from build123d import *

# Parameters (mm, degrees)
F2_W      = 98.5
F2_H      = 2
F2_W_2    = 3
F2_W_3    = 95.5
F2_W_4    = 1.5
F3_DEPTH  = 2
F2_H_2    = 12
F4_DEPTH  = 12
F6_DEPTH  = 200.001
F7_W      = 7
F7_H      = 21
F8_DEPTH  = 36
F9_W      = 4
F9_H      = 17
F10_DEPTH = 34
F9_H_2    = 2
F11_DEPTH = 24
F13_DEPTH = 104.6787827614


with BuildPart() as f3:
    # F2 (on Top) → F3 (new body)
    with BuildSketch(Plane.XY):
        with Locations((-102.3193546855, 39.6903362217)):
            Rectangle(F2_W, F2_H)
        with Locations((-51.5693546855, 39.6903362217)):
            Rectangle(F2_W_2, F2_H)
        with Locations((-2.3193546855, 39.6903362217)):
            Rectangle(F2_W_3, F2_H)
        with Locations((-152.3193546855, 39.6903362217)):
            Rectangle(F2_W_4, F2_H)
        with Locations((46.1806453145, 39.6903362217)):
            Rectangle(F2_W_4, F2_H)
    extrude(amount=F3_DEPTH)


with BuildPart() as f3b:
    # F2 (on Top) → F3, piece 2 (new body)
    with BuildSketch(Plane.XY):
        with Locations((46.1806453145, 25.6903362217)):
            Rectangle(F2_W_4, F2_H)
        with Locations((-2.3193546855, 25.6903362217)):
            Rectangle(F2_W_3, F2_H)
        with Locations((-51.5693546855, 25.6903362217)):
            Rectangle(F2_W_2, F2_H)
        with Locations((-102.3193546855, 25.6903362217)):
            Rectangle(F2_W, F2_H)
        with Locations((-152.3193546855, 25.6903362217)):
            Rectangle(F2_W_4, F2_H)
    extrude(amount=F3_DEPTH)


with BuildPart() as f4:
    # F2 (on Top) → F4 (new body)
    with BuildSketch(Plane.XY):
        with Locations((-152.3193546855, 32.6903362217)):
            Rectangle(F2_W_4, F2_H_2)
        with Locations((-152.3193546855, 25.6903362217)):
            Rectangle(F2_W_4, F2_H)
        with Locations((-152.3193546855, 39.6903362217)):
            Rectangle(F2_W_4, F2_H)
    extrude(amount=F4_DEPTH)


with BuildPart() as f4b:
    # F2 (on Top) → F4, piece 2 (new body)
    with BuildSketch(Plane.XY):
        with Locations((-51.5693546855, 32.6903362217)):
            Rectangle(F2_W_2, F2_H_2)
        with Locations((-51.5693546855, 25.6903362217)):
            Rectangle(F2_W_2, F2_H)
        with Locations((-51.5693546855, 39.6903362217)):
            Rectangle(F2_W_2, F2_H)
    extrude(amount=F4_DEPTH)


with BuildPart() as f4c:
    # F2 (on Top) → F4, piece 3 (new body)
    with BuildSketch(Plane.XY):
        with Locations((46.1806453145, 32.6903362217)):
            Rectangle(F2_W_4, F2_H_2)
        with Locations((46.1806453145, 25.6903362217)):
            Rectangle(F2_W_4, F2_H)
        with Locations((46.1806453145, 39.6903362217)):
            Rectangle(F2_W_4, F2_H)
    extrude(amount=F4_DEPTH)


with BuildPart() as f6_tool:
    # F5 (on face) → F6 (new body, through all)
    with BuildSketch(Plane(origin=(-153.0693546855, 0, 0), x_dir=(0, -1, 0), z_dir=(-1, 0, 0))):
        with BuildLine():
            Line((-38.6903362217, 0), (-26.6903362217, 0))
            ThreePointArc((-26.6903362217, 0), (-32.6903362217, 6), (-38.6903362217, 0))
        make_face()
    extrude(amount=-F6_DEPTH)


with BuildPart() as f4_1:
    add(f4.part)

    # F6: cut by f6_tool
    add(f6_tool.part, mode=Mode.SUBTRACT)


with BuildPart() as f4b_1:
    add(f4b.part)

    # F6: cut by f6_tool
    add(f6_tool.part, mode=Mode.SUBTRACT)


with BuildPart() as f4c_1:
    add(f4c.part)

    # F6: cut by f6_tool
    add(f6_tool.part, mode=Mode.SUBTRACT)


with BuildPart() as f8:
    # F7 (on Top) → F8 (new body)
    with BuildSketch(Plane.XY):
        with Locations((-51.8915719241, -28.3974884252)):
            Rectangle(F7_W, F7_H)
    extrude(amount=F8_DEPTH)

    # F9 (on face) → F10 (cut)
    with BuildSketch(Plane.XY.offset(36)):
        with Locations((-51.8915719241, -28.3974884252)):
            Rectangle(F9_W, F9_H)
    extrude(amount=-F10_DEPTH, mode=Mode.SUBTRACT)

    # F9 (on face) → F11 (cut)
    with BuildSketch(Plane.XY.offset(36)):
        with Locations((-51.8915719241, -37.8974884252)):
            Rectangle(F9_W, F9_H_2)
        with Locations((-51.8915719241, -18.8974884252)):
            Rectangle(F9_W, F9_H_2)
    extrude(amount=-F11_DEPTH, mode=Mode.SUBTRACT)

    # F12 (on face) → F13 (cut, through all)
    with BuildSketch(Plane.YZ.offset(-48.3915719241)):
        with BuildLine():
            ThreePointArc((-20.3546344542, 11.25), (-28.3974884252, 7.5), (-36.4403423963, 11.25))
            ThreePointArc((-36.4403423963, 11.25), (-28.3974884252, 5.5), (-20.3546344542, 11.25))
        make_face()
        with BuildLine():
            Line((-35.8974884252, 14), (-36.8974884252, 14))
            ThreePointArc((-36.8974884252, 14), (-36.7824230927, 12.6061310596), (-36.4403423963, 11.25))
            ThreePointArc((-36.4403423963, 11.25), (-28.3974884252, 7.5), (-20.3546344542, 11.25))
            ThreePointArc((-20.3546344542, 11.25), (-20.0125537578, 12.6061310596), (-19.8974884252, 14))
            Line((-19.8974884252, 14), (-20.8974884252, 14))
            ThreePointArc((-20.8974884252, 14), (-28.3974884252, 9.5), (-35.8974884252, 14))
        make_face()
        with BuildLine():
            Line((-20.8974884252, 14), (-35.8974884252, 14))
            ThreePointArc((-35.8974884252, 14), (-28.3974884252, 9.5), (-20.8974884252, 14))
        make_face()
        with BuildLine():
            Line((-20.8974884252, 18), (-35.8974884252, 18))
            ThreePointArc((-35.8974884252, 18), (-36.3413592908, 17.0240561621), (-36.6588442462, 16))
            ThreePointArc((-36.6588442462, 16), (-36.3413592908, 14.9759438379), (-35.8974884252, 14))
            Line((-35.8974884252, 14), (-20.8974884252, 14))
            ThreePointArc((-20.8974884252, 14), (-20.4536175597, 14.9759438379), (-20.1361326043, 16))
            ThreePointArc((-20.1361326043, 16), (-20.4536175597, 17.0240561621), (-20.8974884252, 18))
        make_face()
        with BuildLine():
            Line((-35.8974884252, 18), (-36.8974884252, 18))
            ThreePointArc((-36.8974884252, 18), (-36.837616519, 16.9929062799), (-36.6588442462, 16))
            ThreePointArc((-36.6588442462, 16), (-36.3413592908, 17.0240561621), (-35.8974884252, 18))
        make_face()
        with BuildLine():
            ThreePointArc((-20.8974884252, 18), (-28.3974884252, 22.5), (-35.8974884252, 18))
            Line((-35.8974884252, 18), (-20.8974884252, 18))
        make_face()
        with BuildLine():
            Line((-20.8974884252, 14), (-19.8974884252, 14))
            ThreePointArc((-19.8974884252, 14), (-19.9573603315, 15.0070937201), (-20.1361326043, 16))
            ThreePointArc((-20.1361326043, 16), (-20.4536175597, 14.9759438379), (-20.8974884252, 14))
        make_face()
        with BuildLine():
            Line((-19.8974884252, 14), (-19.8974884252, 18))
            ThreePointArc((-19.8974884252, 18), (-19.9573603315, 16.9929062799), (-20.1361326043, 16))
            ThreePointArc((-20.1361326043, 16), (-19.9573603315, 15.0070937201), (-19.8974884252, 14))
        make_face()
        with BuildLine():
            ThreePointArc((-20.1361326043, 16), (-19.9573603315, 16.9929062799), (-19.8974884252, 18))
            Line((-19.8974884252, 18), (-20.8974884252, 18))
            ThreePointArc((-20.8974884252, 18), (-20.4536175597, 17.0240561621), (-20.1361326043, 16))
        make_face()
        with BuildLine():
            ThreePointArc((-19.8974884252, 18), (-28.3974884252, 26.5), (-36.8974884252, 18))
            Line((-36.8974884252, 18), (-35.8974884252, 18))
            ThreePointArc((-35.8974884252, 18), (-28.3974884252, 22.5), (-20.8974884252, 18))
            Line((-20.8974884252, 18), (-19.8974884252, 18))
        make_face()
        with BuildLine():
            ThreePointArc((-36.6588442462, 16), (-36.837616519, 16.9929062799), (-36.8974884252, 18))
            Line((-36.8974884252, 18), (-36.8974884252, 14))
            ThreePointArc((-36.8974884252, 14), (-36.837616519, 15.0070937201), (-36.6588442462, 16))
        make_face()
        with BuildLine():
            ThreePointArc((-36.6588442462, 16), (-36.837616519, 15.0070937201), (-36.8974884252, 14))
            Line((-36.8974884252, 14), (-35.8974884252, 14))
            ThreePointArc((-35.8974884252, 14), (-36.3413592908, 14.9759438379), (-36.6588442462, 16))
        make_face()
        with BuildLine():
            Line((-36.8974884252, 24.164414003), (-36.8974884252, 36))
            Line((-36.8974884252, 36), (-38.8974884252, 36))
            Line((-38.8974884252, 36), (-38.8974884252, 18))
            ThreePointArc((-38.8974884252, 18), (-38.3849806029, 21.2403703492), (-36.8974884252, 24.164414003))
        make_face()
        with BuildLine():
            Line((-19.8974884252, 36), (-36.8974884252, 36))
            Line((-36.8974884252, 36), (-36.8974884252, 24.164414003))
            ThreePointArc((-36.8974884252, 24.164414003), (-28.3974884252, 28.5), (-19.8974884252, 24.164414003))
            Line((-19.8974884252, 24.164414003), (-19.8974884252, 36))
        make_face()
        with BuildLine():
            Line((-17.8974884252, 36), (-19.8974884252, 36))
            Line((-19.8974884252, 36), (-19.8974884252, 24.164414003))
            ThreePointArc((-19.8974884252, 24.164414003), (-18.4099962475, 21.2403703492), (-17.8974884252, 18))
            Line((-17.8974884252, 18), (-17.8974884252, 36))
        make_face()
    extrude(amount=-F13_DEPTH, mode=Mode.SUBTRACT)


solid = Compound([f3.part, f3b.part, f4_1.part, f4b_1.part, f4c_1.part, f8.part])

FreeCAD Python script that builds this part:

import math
import FreeCAD as App
import Part
import Sketcher

doc = App.newDocument("Part")
body = doc.addObject("PartDesign::Body", "Body")

sketch1 = body.newObject("Sketcher::SketchObject", "Sketch")
sketch1.AttachmentSupport = (doc.getObject("XY_Plane"), [""])
sketch1.MapMode = "FlatFace"
sketch1.addGeometry(Part.LineSegment(App.Vector(-153.1, 40.7, 0), App.Vector(-153.1, 38.7, 0)), False)
sketch1.addGeometry(Part.LineSegment(App.Vector(-153.1, 38.7, 0), App.Vector(46.9, 38.7, 0)), False)
sketch1.addGeometry(Part.LineSegment(App.Vector(46.9, 38.7, 0), App.Vector(46.9, 40.7, 0)), False)
sketch1.addGeometry(Part.LineSegment(App.Vector(46.9, 40.7, 0), App.Vector(-153.1, 40.7, 0)), False)
sketch1.addConstraint(Sketcher.Constraint("Coincident", 0, 2, 1, 1))
sketch1.addConstraint(Sketcher.Constraint("Coincident", 1, 2, 2, 1))
sketch1.addConstraint(Sketcher.Constraint("Coincident", 2, 2, 3, 1))
sketch1.addConstraint(Sketcher.Constraint("Coincident", 3, 2, 0, 1))
sketch1.addConstraint(Sketcher.Constraint("Vertical", 0))
sketch1.addConstraint(Sketcher.Constraint("Horizontal", 1))
sketch1.addConstraint(Sketcher.Constraint("Vertical", 2))
sketch1.addConstraint(Sketcher.Constraint("Horizontal", 3))
sketch1.addConstraint(Sketcher.Constraint("DistanceX", 1, 1, 1, 2, 200.0))
sketch1.addConstraint(Sketcher.Constraint("DistanceY", 0, 2, 0, 1, 2.0))
sketch1.addConstraint(Sketcher.Constraint("DistanceX", 0, 2, -1, 1, 153.069355))
sketch1.addConstraint(Sketcher.Constraint("DistanceY", -1, 1, 0, 2, 38.690336))
pad1 = body.newObject("PartDesign::Pad", "Pad")
pad1.Profile = sketch1
pad1.Length = 2
body2 = doc.addObject("PartDesign::Body", "Body001")

sketch2 = body2.newObject("Sketcher::SketchObject", "Sketch001")
sketch2.AttachmentSupport = (doc.getObject("XY_Plane001"), [""])
sketch2.MapMode = "FlatFace"
sketch2.addGeometry(Part.LineSegment(App.Vector(46.9, 24.7, 0), App.Vector(46.9, 26.7, 0)), False)
sketch2.addGeometry(Part.LineSegment(App.Vector(46.9, 26.7, 0), App.Vector(-153.1, 26.7, 0)), False)
sketch2.addGeometry(Part.LineSegment(App.Vector(-153.1, 26.7, 0), App.Vector(-153.1, 24.7, 0)), False)
sketch2.addGeometry(Part.LineSegment(App.Vector(-153.1, 24.7, 0), App.Vector(46.9, 24.7, 0)), False)
sketch2.addConstraint(Sketcher.Constraint("Coincident", 0, 2, 1, 1))
sketch2.addConstraint(Sketcher.Constraint("Coincident", 1, 2, 2, 1))
sketch2.addConstraint(Sketcher.Constraint("Coincident", 2, 2, 3, 1))
sketch2.addConstraint(Sketcher.Constraint("Coincident", 3, 2, 0, 1))
sketch2.addConstraint(Sketcher.Constraint("Vertical", 0))
sketch2.addConstraint(Sketcher.Constraint("Horizontal", 1))
sketch2.addConstraint(Sketcher.Constraint("Vertical", 2))
sketch2.addConstraint(Sketcher.Constraint("Horizontal", 3))
sketch2.addConstraint(Sketcher.Constraint("DistanceX", 1, 2, 1, 1, 200.0))
sketch2.addConstraint(Sketcher.Constraint("DistanceY", 0, 1, 0, 2, 2.0))
sketch2.addConstraint(Sketcher.Constraint("DistanceX", -1, 1, 0, 2, 46.930645))
sketch2.addConstraint(Sketcher.Constraint("DistanceY", -1, 1, 0, 2, 26.690336))
pad2 = body2.newObject("PartDesign::Pad", "Pad001")
pad2.Profile = sketch2
pad2.Length = 2
body3 = doc.addObject("PartDesign::Body", "Body002")

sketch3 = body3.newObject("Sketcher::SketchObject", "Sketch002")
sketch3.AttachmentSupport = (doc.getObject("XY_Plane002"), [""])
sketch3.MapMode = "FlatFace"
sketch3.addGeometry(Part.LineSegment(App.Vector(-153.1, 24.7, 0), App.Vector(-151.6, 24.7, 0)), False)
sketch3.addGeometry(Part.LineSegment(App.Vector(-151.6, 24.7, 0), App.Vector(-151.6, 40.7, 0)), False)
sketch3.addGeometry(Part.LineSegment(App.Vector(-151.6, 40.7, 0), App.Vector(-153.1, 40.7, 0)), False)
sketch3.addGeometry(Part.LineSegment(App.Vector(-153.1, 40.7, 0), App.Vector(-153.1, 24.7, 0)), False)
sketch3.addConstraint(Sketcher.Constraint("Coincident", 0, 2, 1, 1))
sketch3.addConstraint(Sketcher.Constraint("Coincident", 1, 2, 2, 1))
sketch3.addConstraint(Sketcher.Constraint("Coincident", 2, 2, 3, 1))
sketch3.addConstraint(Sketcher.Constraint("Coincident", 3, 2, 0, 1))
sketch3.addConstraint(Sketcher.Constraint("Horizontal", 0))
sketch3.addConstraint(Sketcher.Constraint("Vertical", 1))
sketch3.addConstraint(Sketcher.Constraint("Horizontal", 2))
sketch3.addConstraint(Sketcher.Constraint("Vertical", 3))
sketch3.addConstraint(Sketcher.Constraint("DistanceY", 1, 1, 1, 2, 16.0))
sketch3.addConstraint(Sketcher.Constraint("DistanceX", 0, 1, 0, 2, 1.5))
sketch3.addConstraint(Sketcher.Constraint("DistanceX", 0, 2, -1, 1, 151.569355))
sketch3.addConstraint(Sketcher.Constraint("DistanceY", -1, 1, 0, 2, 24.690336))
pad3 = body3.newObject("PartDesign::Pad", "Pad002")
pad3.Profile = sketch3
pad3.Length = 12
body4 = doc.addObject("PartDesign::Body", "Body003")

sketch4 = body4.newObject("Sketcher::SketchObject", "Sketch003")
sketch4.AttachmentSupport = (doc.getObject("XY_Plane003"), [""])
sketch4.MapMode = "FlatFace"
sketch4.addGeometry(Part.LineSegment(App.Vector(-53.1, 24.7, 0), App.Vector(-50.1, 24.7, 0)), False)
sketch4.addGeometry(Part.LineSegment(App.Vector(-50.1, 24.7, 0), App.Vector(-50.1, 40.7, 0)), False)
sketch4.addGeometry(Part.LineSegment(App.Vector(-50.1, 40.7, 0), App.Vector(-53.1, 40.7, 0)), False)
sketch4.addGeometry(Part.LineSegment(App.Vector(-53.1, 40.7, 0), App.Vector(-53.1, 24.7, 0)), False)
sketch4.addConstraint(Sketcher.Constraint("Coincident", 0, 2, 1, 1))
sketch4.addConstraint(Sketcher.Constraint("Coincident", 1, 2, 2, 1))
sketch4.addConstraint(Sketcher.Constraint("Coincident", 2, 2, 3, 1))
sketch4.addConstraint(Sketcher.Constraint("Coincident", 3, 2, 0, 1))
sketch4.addConstraint(Sketcher.Constraint("Horizontal", 0))
sketch4.addConstraint(Sketcher.Constraint("Vertical", 1))
sketch4.addConstraint(Sketcher.Constraint("Horizontal", 2))
sketch4.addConstraint(Sketcher.Constraint("Vertical", 3))
sketch4.addConstraint(Sketcher.Constraint("DistanceX", 0, 1, 0, 2, 3.0))
sketch4.addConstraint(Sketcher.Constraint("DistanceY", 1, 1, 1, 2, 16.0))
sketch4.addConstraint(Sketcher.Constraint("DistanceX", 0, 2, -1, 1, 50.069355))
sketch4.addConstraint(Sketcher.Constraint("DistanceY", -1, 1, 0, 2, 24.690336))
pad4 = body4.newObject("PartDesign::Pad", "Pad003")
pad4.Profile = sketch4
pad4.Length = 12
body5 = doc.addObject("PartDesign::Body", "Body004")

sketch5 = body5.newObject("Sketcher::SketchObject", "Sketch004")
sketch5.AttachmentSupport = (doc.getObject("XY_Plane004"), [""])
sketch5.MapMode = "FlatFace"
sketch5.addGeometry(Part.LineSegment(App.Vector(45.4, 24.7, 0), App.Vector(46.9, 24.7, 0)), False)
sketch5.addGeometry(Part.LineSegment(App.Vector(46.9, 24.7, 0), App.Vector(46.9, 40.7, 0)), False)
sketch5.addGeometry(Part.LineSegment(App.Vector(46.9, 40.7, 0), App.Vector(45.4, 40.7, 0)), False)
sketch5.addGeometry(Part.LineSegment(App.Vector(45.4, 40.7, 0), App.Vector(45.4, 24.7, 0)), False)
sketch5.addConstraint(Sketcher.Constraint("Coincident", 0, 2, 1, 1))
sketch5.addConstraint(Sketcher.Constraint("Coincident", 1, 2, 2, 1))
sketch5.addConstraint(Sketcher.Constraint("Coincident", 2, 2, 3, 1))
sketch5.addConstraint(Sketcher.Constraint("Coincident", 3, 2, 0, 1))
sketch5.addConstraint(Sketcher.Constraint("Horizontal", 0))
sketch5.addConstraint(Sketcher.Constraint("Vertical", 1))
sketch5.addConstraint(Sketcher.Constraint("Horizontal", 2))
sketch5.addConstraint(Sketcher.Constraint("Vertical", 3))
sketch5.addConstraint(Sketcher.Constraint("DistanceY", 1, 1, 1, 2, 16.0))
sketch5.addConstraint(Sketcher.Constraint("DistanceX", 0, 1, 0, 2, 1.5))
sketch5.addConstraint(Sketcher.Constraint("DistanceX", -1, 1, 0, 2, 46.930645))
sketch5.addConstraint(Sketcher.Constraint("DistanceY", -1, 1, 0, 2, 24.690336))
pad5 = body5.newObject("PartDesign::Pad", "Pad004")
pad5.Profile = sketch5
pad5.Length = 12
body6 = doc.addObject("PartDesign::Body", "Body005")

sketch6 = body6.newObject("Sketcher::SketchObject", "Sketch005")
sketch6.AttachmentSupport = (doc.getObject("YZ_Plane005"), [""])
sketch6.MapMode = "FlatFace"
sketch6.AttachmentOffset = App.Placement(App.Vector(0, 0, -153.069355), App.Rotation())
sketch6.addGeometry(Part.LineSegment(App.Vector(39, 0, 0), App.Vector(27, 0, 0)), False)
sketch6.addGeometry(Part.ArcOfCircle(Part.Circle(App.Vector(33, 0, 0), App.Vector(0, 0, 1), 6), math.radians(0), math.radians(180)), False)
sketch6.addConstraint(Sketcher.Constraint("Coincident", 0, 1, 1, 1))
sketch6.addConstraint(Sketcher.Constraint("Coincident", 1, 2, 0, 2))
sketch6.addConstraint(Sketcher.Constraint("Horizontal", 0))
sketch6.addConstraint(Sketcher.Constraint("PointOnObject", 1, 3, -1))
sketch6.addConstraint(Sketcher.Constraint("PointOnObject", 0, 1, -1))
sketch6.addConstraint(Sketcher.Constraint("Radius", 1, 6.0))
sketch6.addConstraint(Sketcher.Constraint("DistanceX", -1, 1, 1, 3, 32.690336))
pad6 = body6.newObject("PartDesign::Pad", "Pad005")
pad6.Profile = sketch6
pad6.Length = 200.001
doc.recompute()

body7 = doc.addObject("PartDesign::Body", "Body006")
body7.BaseFeature = body6
boolean = body3.newObject("PartDesign::Boolean", "Boolean")
boolean.Type = "Cut"
boolean.addObjects([body7])
doc.recompute()

body8 = doc.addObject("PartDesign::Body", "Body007")
body8.BaseFeature = body6
boolean2 = body4.newObject("PartDesign::Boolean", "Boolean001")
boolean2.Type = "Cut"
boolean2.addObjects([body8])
doc.recompute()

boolean3 = body5.newObject("PartDesign::Boolean", "Boolean002")
boolean3.Type = "Cut"
boolean3.addObjects([body6])
body9 = doc.addObject("PartDesign::Body", "Body008")

sketch7 = body9.newObject("Sketcher::SketchObject", "Sketch006")
sketch7.AttachmentSupport = (doc.getObject("XY_Plane008"), [""])
sketch7.MapMode = "FlatFace"
sketch7.addGeometry(Part.LineSegment(App.Vector(-55, -18, 0), App.Vector(-55, -39, 0)), False)
sketch7.addGeometry(Part.LineSegment(App.Vector(-55, -39, 0), App.Vector(-48, -39, 0)), False)
sketch7.addGeometry(Part.LineSegment(App.Vector(-48, -39, 0), App.Vector(-48, -18, 0)), False)
sketch7.addGeometry(Part.LineSegment(App.Vector(-48, -18, 0), App.Vector(-55, -18, 0)), False)
sketch7.addConstraint(Sketcher.Constraint("Coincident", 0, 2, 1, 1))
sketch7.addConstraint(Sketcher.Constraint("Coincident", 1, 2, 2, 1))
sketch7.addConstraint(Sketcher.Constraint("Coincident", 2, 2, 3, 1))
sketch7.addConstraint(Sketcher.Constraint("Coincident", 3, 2, 0, 1))
sketch7.addConstraint(Sketcher.Constraint("Vertical", 0))
sketch7.addConstraint(Sketcher.Constraint("Horizontal", 1))
sketch7.addConstraint(Sketcher.Constraint("Vertical", 2))
sketch7.addConstraint(Sketcher.Constraint("Horizontal", 3))
sketch7.addConstraint(Sketcher.Constraint("DistanceX", 1, 1, 1, 2, 7.0))
sketch7.addConstraint(Sketcher.Constraint("DistanceY", 0, 2, 0, 1, 21.0))
sketch7.addConstraint(Sketcher.Constraint("DistanceX", 0, 2, -1, 1, 55.391572))
sketch7.addConstraint(Sketcher.Constraint("DistanceY", 0, 2, -1, 1, 38.897488))
pad7 = body9.newObject("PartDesign::Pad", "Pad006")
pad7.Profile = sketch7
pad7.Length = 36

sketch8 = body9.newObject("Sketcher::SketchObject", "Sketch007")
sketch8.AttachmentSupport = (doc.getObject("XY_Plane008"), [""])
sketch8.MapMode = "FlatFace"
sketch8.AttachmentOffset = App.Placement(App.Vector(0, 0, 36), App.Rotation())
sketch8.addGeometry(Part.LineSegment(App.Vector(-53.9, -19.9, 0), App.Vector(-53.9, -36.9, 0)), False)
sketch8.addGeometry(Part.LineSegment(App.Vector(-53.9, -36.9, 0), App.Vector(-49.9, -36.9, 0)), False)
sketch8.addGeometry(Part.LineSegment(App.Vector(-49.9, -36.9, 0), App.Vector(-49.9, -19.9, 0)), False)
sketch8.addGeometry(Part.LineSegment(App.Vector(-49.9, -19.9, 0), App.Vector(-53.9, -19.9, 0)), False)
sketch8.addConstraint(Sketcher.Constraint("Coincident", 0, 2, 1, 1))
sketch8.addConstraint(Sketcher.Constraint("Coincident", 1, 2, 2, 1))
sketch8.addConstraint(Sketcher.Constraint("Coincident", 2, 2, 3, 1))
sketch8.addConstraint(Sketcher.Constraint("Coincident", 3, 2, 0, 1))
sketch8.addConstraint(Sketcher.Constraint("Vertical", 0))
sketch8.addConstraint(Sketcher.Constraint("Horizontal", 1))
sketch8.addConstraint(Sketcher.Constraint("Vertical", 2))
sketch8.addConstraint(Sketcher.Constraint("Horizontal", 3))
sketch8.addConstraint(Sketcher.Constraint("DistanceX", 1, 1, 1, 2, 4.0))
sketch8.addConstraint(Sketcher.Constraint("DistanceY", 0, 2, 0, 1, 17.0))
sketch8.addConstraint(Sketcher.Constraint("DistanceX", 0, 2, -1, 1, 53.891572))
sketch8.addConstraint(Sketcher.Constraint("DistanceY", 0, 2, -1, 1, 36.897488))
pocket1 = body9.newObject("PartDesign::Pocket", "Pocket")
pocket1.Profile = sketch8
pocket1.Length = 34

sketch9 = body9.newObject("Sketcher::SketchObject", "Sketch008")
sketch9.AttachmentSupport = (doc.getObject("XY_Plane008"), [""])
sketch9.MapMode = "FlatFace"
sketch9.AttachmentOffset = App.Placement(App.Vector(0, 0, 36), App.Rotation())
sketch9.addGeometry(Part.LineSegment(App.Vector(-53.9, -36.9, 0), App.Vector(-53.9, -38.9, 0)), False)
sketch9.addGeometry(Part.LineSegment(App.Vector(-53.9, -38.9, 0), App.Vector(-49.9, -38.9, 0)), False)
sketch9.addGeometry(Part.LineSegment(App.Vector(-49.9, -38.9, 0), App.Vector(-49.9, -36.9, 0)), False)
sketch9.addGeometry(Part.LineSegment(App.Vector(-49.9, -36.9, 0), App.Vector(-53.9, -36.9, 0)), False)
sketch9.addGeometry(Part.LineSegment(App.Vector(-53.9, -17.9, 0), App.Vector(-53.9, -19.9, 0)), False)
sketch9.addGeometry(Part.LineSegment(App.Vector(-53.9, -19.9, 0), App.Vector(-49.9, -19.9, 0)), False)
sketch9.addGeometry(Part.LineSegment(App.Vector(-49.9, -19.9, 0), App.Vector(-49.9, -17.9, 0)), False)
sketch9.addGeometry(Part.LineSegment(App.Vector(-49.9, -17.9, 0), App.Vector(-53.9, -17.9, 0)), False)
sketch9.addConstraint(Sketcher.Constraint("Coincident", 0, 2, 1, 1))
sketch9.addConstraint(Sketcher.Constraint("Coincident", 1, 2, 2, 1))
sketch9.addConstraint(Sketcher.Constraint("Coincident", 2, 2, 3, 1))
sketch9.addConstraint(Sketcher.Constraint("Coincident", 3, 2, 0, 1))
sketch9.addConstraint(Sketcher.Constraint("Coincident", 4, 2, 5, 1))
sketch9.addConstraint(Sketcher.Constraint("Coincident", 5, 2, 6, 1))
sketch9.addConstraint(Sketcher.Constraint("Coincident", 6, 2, 7, 1))
sketch9.addConstraint(Sketcher.Constraint("Coincident", 7, 2, 4, 1))
sketch9.addConstraint(Sketcher.Constraint("Vertical", 0))
sketch9.addConstraint(Sketcher.Constraint("Horizontal", 1))
sketch9.addConstraint(Sketcher.Constraint("Vertical", 2))
sketch9.addConstraint(Sketcher.Constraint("Horizontal", 3))
sketch9.addConstraint(Sketcher.Constraint("Vertical", 4))
sketch9.addConstraint(Sketcher.Constraint("Horizontal", 5))
sketch9.addConstraint(Sketcher.Constraint("Vertical", 6))
sketch9.addConstraint(Sketcher.Constraint("Horizontal", 7))
sketch9.addConstraint(Sketcher.Constraint("Vertical", 3, 2, 4, 2))
sketch9.addConstraint(Sketcher.Constraint("Vertical", 2, 2, 5, 2))
sketch9.addConstraint(Sketcher.Constraint("Equal", 2, 4))
sketch9.addConstraint(Sketcher.Constraint("DistanceX", 1, 1, 1, 2, 4.0))
sketch9.addConstraint(Sketcher.Constraint("DistanceY", 0, 2, 0, 1, 2.0))
sketch9.addConstraint(Sketcher.Constraint("DistanceY", 3, 2, 4, 2, 17.0))
sketch9.addConstraint(Sketcher.Constraint("DistanceX", 0, 2, -1, 1, 53.891572))
sketch9.addConstraint(Sketcher.Constraint("DistanceY", 0, 2, -1, 1, 38.897488))
pocket2 = body9.newObject("PartDesign::Pocket", "Pocket001")
pocket2.Profile = sketch9
pocket2.Length = 24

sketch10 = body9.newObject("Sketcher::SketchObject", "Sketch009")
sketch10.AttachmentSupport = (doc.getObject("YZ_Plane008"), [""])
sketch10.MapMode = "FlatFace"
sketch10.AttachmentOffset = App.Placement(App.Vector(0, 0, -48.391572), App.Rotation())
sketch10.addGeometry(Part.LineSegment(App.Vector(-36.9, 18, 0), App.Vector(-36.9, 14, 0)), False)
sketch10.addGeometry(Part.ArcOfCircle(Part.Circle(App.Vector(-28.4, 14, 0), App.Vector(0, 0, 1), 8.5), math.radians(180), math.radians(198.88)), False)
sketch10.addGeometry(Part.ArcOfCircle(Part.Circle(App.Vector(-28.4, 14, 0), App.Vector(0, 0, 1), 8.5), math.radians(-161), math.radians(-19)), False)
sketch10.addGeometry(Part.ArcOfCircle(Part.Circle(App.Vector(-28.4, 14, 0), App.Vector(0, 0, 1), 8.5), math.radians(-18.88), math.radians(0)), False)
sketch10.addGeometry(Part.LineSegment(App.Vector(-19.9, 14, 0), App.Vector(-19.9, 18, 0)), False)
sketch10.addGeometry(Part.ArcOfCircle(Part.Circle(App.Vector(-28.4, 18, 0), App.Vector(0, 0, 1), 8.5), math.radians(0), math.radians(180)), False)
sketch10.addGeometry(Part.LineSegment(App.Vector(-38.9, 36, 0), App.Vector(-38.9, 18, 0)), False)
sketch10.addGeometry(Part.ArcOfCircle(Part.Circle(App.Vector(-28.4, 18, 0), App.Vector(0, 0, 1), 10.5), math.radians(144), math.radians(180)), False)
sketch10.addGeometry(Part.ArcOfCircle(Part.Circle(App.Vector(-28.4, 18, 0), App.Vector(0, 0, 1), 10.5), math.radians(36), math.radians(144)), False)
sketch10.addGeometry(Part.ArcOfCircle(Part.Circle(App.Vector(-28.4, 18, 0), App.Vector(0, 0, 1), 10.5), math.radians(0), math.radians(36)), False)
sketch10.addGeometry(Part.LineSegment(App.Vector(-17.9, 18, 0), App.Vector(-17.9, 36, 0)), False)
sketch10.addGeometry(Part.LineSegment(App.Vector(-17.9, 36, 0), App.Vector(-38.9, 36, 0)), False)
sketch10.addConstraint(Sketcher.Constraint("Tangent", 0, 2, 1, 1))
sketch10.addConstraint(Sketcher.Constraint("Tangent", 1, 2, 2, 1))
sketch10.addConstraint(Sketcher.Constraint("Tangent", 2, 2, 3, 1))
sketch10.addConstraint(Sketcher.Constraint("Tangent", 3, 2, 4, 1))
sketch10.addConstraint(Sketcher.Constraint("Tangent", 4, 2, 5, 1))
sketch10.addConstraint(Sketcher.Constraint("Tangent", 5, 2, 0, 1))
sketch10.addConstraint(Sketcher.Constraint("Tangent", 6, 2, 7, 2))
sketch10.addConstraint(Sketcher.Constraint("Tangent", 7, 1, 8, 2))
sketch10.addConstraint(Sketcher.Constraint("Tangent", 8, 1, 9, 2))
sketch10.addConstraint(Sketcher.Constraint("Tangent", 9, 1, 10, 1))
sketch10.addConstraint(Sketcher.Constraint("Coincident", 10, 2, 11, 1))
sketch10.addConstraint(Sketcher.Constraint("Coincident", 11, 2, 6, 1))
sketch10.addConstraint(Sketcher.Constraint("Vertical", 0))
sketch10.addConstraint(Sketcher.Constraint("Vertical", 4))
sketch10.addConstraint(Sketcher.Constraint("Vertical", 6))
sketch10.addConstraint(Sketcher.Constraint("Vertical", 10))
sketch10.addConstraint(Sketcher.Constraint("Horizontal", 11))
sketch10.addConstraint(Sketcher.Constraint("Coincident", 3, 3, 1, 3))
sketch10.addConstraint(Sketcher.Constraint("Coincident", 7, 3, 5, 3))
sketch10.addConstraint(Sketcher.Constraint("Coincident", 9, 3, 5, 3))
sketch10.addConstraint(Sketcher.Constraint("Horizontal", 1, 2, 2, 2))
sketch10.addConstraint(Sketcher.Constraint("Horizontal", 7, 1, 8, 1))
sketch10.addConstraint(Sketcher.Constraint("Vertical", 5, 2, 7, 1))
sketch10.addConstraint(Sketcher.Constraint("Radius", 1, 8.5))
sketch10.addConstraint(Sketcher.Constraint("Radius", 7, 10.5))
sketch10.addConstraint(Sketcher.Constraint("DistanceY", 0, 2, 0, 1, 4.0))
sketch10.addConstraint(Sketcher.Constraint("DistanceY", 6, 2, 6, 1, 18.0))
sketch10.addConstraint(Sketcher.Constraint("DistanceY", -1, 1, 1, 3, 14.0))
sketch10.addConstraint(Sketcher.Constraint("DistanceY", -1, 1, 1, 2, 11.25))
sketch10.addConstraint(Sketcher.Constraint("DistanceX", 1, 3, -1, 1, 28.397488))
pocket3 = body9.newObject("PartDesign::Pocket", "Pocket002")
pocket3.Profile = sketch10
pocket3.Type = "ThroughAll"

doc.recompute()
